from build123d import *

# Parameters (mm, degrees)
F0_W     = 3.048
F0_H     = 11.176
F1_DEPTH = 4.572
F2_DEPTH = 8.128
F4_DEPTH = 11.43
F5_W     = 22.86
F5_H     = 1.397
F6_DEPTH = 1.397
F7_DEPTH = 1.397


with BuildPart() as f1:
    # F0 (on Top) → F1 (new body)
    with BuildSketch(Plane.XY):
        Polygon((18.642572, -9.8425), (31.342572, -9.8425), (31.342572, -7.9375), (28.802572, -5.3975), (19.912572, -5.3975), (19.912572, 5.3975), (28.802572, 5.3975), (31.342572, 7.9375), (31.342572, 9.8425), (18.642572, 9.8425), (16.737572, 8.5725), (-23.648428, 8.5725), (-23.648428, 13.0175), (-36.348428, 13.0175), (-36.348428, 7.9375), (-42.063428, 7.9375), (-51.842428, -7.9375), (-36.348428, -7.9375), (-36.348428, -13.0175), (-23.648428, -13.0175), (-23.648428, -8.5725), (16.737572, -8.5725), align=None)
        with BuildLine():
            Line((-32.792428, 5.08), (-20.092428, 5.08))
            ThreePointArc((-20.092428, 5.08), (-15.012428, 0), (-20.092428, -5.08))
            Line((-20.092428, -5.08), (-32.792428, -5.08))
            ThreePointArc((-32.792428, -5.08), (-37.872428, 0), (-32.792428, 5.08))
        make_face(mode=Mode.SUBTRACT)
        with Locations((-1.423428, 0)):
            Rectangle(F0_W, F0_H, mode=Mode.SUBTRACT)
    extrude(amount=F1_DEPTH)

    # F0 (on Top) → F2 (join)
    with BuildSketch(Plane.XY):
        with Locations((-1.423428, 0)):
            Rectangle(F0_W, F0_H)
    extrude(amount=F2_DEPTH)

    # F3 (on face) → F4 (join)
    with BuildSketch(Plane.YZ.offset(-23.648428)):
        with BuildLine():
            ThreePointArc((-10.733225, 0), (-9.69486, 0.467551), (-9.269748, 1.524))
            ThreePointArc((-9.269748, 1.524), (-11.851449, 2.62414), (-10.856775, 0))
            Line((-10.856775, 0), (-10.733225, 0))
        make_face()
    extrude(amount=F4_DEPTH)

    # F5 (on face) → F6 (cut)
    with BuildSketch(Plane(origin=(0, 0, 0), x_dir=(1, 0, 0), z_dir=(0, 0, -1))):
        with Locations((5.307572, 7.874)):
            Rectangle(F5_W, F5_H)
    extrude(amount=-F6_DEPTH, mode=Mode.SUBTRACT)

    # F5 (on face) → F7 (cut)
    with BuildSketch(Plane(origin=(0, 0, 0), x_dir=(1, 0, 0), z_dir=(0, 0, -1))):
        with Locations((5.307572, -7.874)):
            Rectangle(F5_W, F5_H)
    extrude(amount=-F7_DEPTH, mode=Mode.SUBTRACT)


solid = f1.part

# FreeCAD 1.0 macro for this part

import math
import FreeCAD as App
import Part
import Sketcher
from FreeCAD import Vector
Q = App.Units.Quantity


def add_polygon(sketch, points):
    """Adds a closed chain of lines whose ends are joined by coincident constraints."""
    first, n = sketch.GeometryCount, len(points)
    for a, b in zip(points, points[1:] + points[:1]):
        sketch.addGeometry(Part.LineSegment(App.Vector(*a, 0), App.Vector(*b, 0)), False)
    for i in range(n):
        sketch.addConstraint(Sketcher.Constraint("Coincident", first + i, 2, first + (i + 1) % n, 1))

doc = App.newDocument("Part")
body = doc.addObject("PartDesign::Body", "Body")

sketch1 = body.newObject("Sketcher::SketchObject", "Sketch")
sketch1.AttachmentSupport = (doc.getObject("XY_Plane"), [""])
sketch1.MapMode = "FlatFace"
add_polygon(sketch1, [(18.6, -9.8), (31.3, -9.8), (31.3, -7.9), (28.8, -5.4), (19.9, -5.4), (19.9, 5.4), (28.8, 5.4), (31.3, 7.9), (31.3, 9.8), (18.6, 9.8), (16.7, 8.6), (-23.6, 8.6), (-23.6, 13), (-36.3, 13), (-36.3, 7.9), (-42.1, 7.9), (-51.8, -7.9), (-36.3, -7.9), (-36.3, -13), (-23.6, -13), (-23.6, -8.6), (16.7, -8.6)])
sketch1.addGeometry(Part.ArcOfCircle(Part.Circle(Vector(-32.8, 0, 0), Vector(0, 0, 1), 5.1), math.radians(90), math.radians(270)), False)
sketch1.addGeometry(Part.LineSegment(Vector(-32.8, 5.1, 0), Vector(-20.1, 5.1, 0)), False)
sketch1.addGeometry(Part.ArcOfCircle(Part.Circle(Vector(-20.1, 0, 0), Vector(0, 0, 1), 5.1), math.radians(-90), math.radians(90)), False)
sketch1.addGeometry(Part.LineSegment(Vector(-20.1, -5.1, 0), Vector(-32.8, -5.1, 0)), False)
add_polygon(sketch1, [(0.1, -5.6), (-2.9, -5.6), (-2.9, 5.6), (0.1, 5.6)])
sketch1.addConstraint([
    Sketcher.Constraint("Tangent", 22, 1, 23, 1),
    Sketcher.Constraint("Tangent", 23, 2, 24, 2),
    Sketcher.Constraint("Tangent", 24, 1, 25, 1),
    Sketcher.Constraint("Tangent", 25, 2, 22, 2),
    Sketcher.Constraint("Horizontal", 0),
    Sketcher.Constraint("Vertical", 1),
    Sketcher.Constraint("Horizontal", 3),
    Sketcher.Constraint("Vertical", 4),
    Sketcher.Constraint("Horizontal", 5),
    Sketcher.Constraint("Vertical", 7),
    Sketcher.Constraint("Horizontal", 8),
    Sketcher.Constraint("Horizontal", 10),
    Sketcher.Constraint("Vertical", 11),
    Sketcher.Constraint("Horizontal", 12),
    Sketcher.Constraint("Vertical", 13),
    Sketcher.Constraint("Horizontal", 14),
    Sketcher.Constraint("Horizontal", 16),
    Sketcher.Constraint("Vertical", 17),
    Sketcher.Constraint("Horizontal", 18),
    Sketcher.Constraint("Vertical", 19),
    Sketcher.Constraint("Horizontal", 20),
    Sketcher.Constraint("Horizontal", 23),
    Sketcher.Constraint("Horizontal", 25),
    Sketcher.Constraint("Horizontal", 26),
    Sketcher.Constraint("Vertical", 27),
    Sketcher.Constraint("Horizontal", 28),
    Sketcher.Constraint("Vertical", 29),
    Sketcher.Constraint("Symmetric", 2, 2, 5, 2, -1),
    Sketcher.Constraint("Symmetric", 1, 2, 6, 2, -1),
    Sketcher.Constraint("Symmetric", 13, 2, 16, 2, -1),
    Sketcher.Constraint("Symmetric", 11, 2, 18, 2, -1),
    Sketcher.Constraint("Symmetric", 9, 2, 20, 2, -1),
    Sketcher.Constraint("Symmetric", 8, 2, 21, 2, -1),
    Sketcher.Constraint("PointOnObject", 22, 3, -1),
    Sketcher.Constraint("Perpendicular", 2, 6),
    Sketcher.Constraint("Horizontal", 6, 2, 13, 2),
    Sketcher.Constraint("Equal", 8, 12),
    Sketcher.Constraint("Equal", 18, 23),
    Sketcher.Constraint("Radius", 22, Q("0.2 in")),
    Sketcher.Constraint("DistanceX", 0, 1, 0, 2, Q("0.5 in")),
    Sketcher.Constraint("DistanceY", 13, 2, 13, 1, Q("0.2 in")),
    Sketcher.Constraint("DistanceX", 3, 2, 3, 1, Q("0.35 in")),
    Sketcher.Constraint("DistanceX", 10, 2, 10, 1, Q("1.59 in")),
    Sketcher.Constraint("DistanceX", 16, 1, 16, 2, Q("0.61 in")),
    Sketcher.Constraint("DistanceX", 26, 2, 26, 1, Q("0.12 in")),
    Sketcher.Constraint("DistanceY", 27, 1, 27, 2, Q("0.44 in")),
    Sketcher.Constraint("DistanceX", 2, 2, 1, 2, Q("0.1 in")),
    Sketcher.Constraint("DistanceY", 0, 2, 4, 2, Q("0.6 in")),
    Sketcher.Constraint("DistanceX", 14, 2, 14, 1, Q("0.225 in")),
    Sketcher.Constraint("DistanceY", 1, 1, 1, 2, Q("0.075 in")),
    Sketcher.Constraint("DistanceY", 11, 1, 11, 2, Q("0.175 in")),
    Sketcher.Constraint("DistanceY", 26, 2, -1, 1, Q("0.22 in")),
    Sketcher.Constraint("DistanceX", 10, 2, 24, 3, Q("0.14 in")),
    Sketcher.Constraint("DistanceX", 28, 2, 8, 2, Q("0.73 in")),
    Sketcher.Constraint("DistanceX", 24, 3, 0, 2, Q("2.025 in")),
    Sketcher.Constraint("DistanceX", 24, 3, -1, 1, Q("20.092428 mm")),
])
pad1 = body.newObject("PartDesign::Pad", "Pad")
pad1.Profile = sketch1
pad1.Length = Q("0.18 in")

sketch2 = body.newObject("Sketcher::SketchObject", "Sketch001")
sketch2.AttachmentSupport = (doc.getObject("XY_Plane"), [""])
sketch2.MapMode = "FlatFace"
add_polygon(sketch2, [(-2.9, 5.6), (-2.9, -5.6), (0.1, -5.6), (0.1, 5.6)])
sketch2.addConstraint([
    Sketcher.Constraint("Vertical", 0),
    Sketcher.Constraint("Horizontal", 1),
    Sketcher.Constraint("Vertical", 2),
    Sketcher.Constraint("Horizontal", 3),
    Sketcher.Constraint("DistanceX", 1, 1, 1, 2, Q("0.12 in")),
    Sketcher.Constraint("DistanceY", 0, 2, 0, 1, Q("0.44 in")),
    Sketcher.Constraint("DistanceY", 0, 2, -1, 1, Q("0.22 in")),
    Sketcher.Constraint("DistanceX", -1, 1, 1, 2, Q("0.100572 mm")),
])
pad2 = body.newObject("PartDesign::Pad", "Pad001")
pad2.Profile = sketch2
pad2.Length = Q("0.32 in")

sketch3 = body.newObject("Sketcher::SketchObject", "Sketch002")
sketch3.AttachmentSupport = (doc.getObject("YZ_Plane"), [""])
sketch3.MapMode = "FlatFace"
sketch3.AttachmentOffset = App.Placement(Vector(0, 0, -23.648428), App.Rotation())
sketch3.addGeometry([
    Part.ArcOfCircle(Part.Circle(Vector(-10.8, 1.52, 0), Vector(0, 0, 1), 1.53), math.radians(-88), math.radians(0)),
    Part.ArcOfCircle(Part.Circle(Vector(-10.79, 1.52, 0), Vector(0, 0, 1), 1.53), math.radians(0), math.radians(268)),
    Part.LineSegment(Vector(-10.86, 0, 0), Vector(-10.73, 0, 0)),
], False)
sketch3.addConstraint([
    Sketcher.Constraint("Tangent", 0, 2, 1, 1),
    Sketcher.Constraint("Coincident", 1, 2, 2, 1),
    Sketcher.Constraint("Coincident", 2, 2, 0, 1),
    Sketcher.Constraint("Horizontal", 2),
    Sketcher.Constraint("Equal", 0, 1),
    Sketcher.Constraint("PointOnObject", 1, 2, -1),
    Sketcher.Constraint("Horizontal", 1, 3, 0, 2),
    Sketcher.Constraint("DistanceY", -1, 1, 0, 3, Q("0.06 in")),
    Sketcher.Constraint("DistanceX", 0, 3, -1, 1, Q("0.425 in")),
    Sketcher.Constraint("Radius", 1, Q("1.525252 mm")),
])
pad3 = body.newObject("PartDesign::Pad", "Pad002")
pad3.Profile = sketch3
pad3.Length = Q("0.45 in")

sketch4 = body.newObject("Sketcher::SketchObject", "Sketch003")
sketch4.AttachmentSupport = (doc.getObject("XY_Plane"), [""])
sketch4.MapMode = "FlatFace"
add_polygon(sketch4, [(-6.1, -8.6), (-6.1, -7.2), (16.7, -7.2), (16.7, -8.6)])
sketch4.addConstraint([
    Sketcher.Constraint("Vertical", 0),
    Sketcher.Constraint("Horizontal", 1),
    Sketcher.Constraint("Vertical", 2),
    Sketcher.Constraint("Horizontal", 3),
    Sketcher.Constraint("DistanceX", 1, 1, 1, 2, Q("0.9 in")),
    Sketcher.Constraint("DistanceY", 0, 1, 0, 2, Q("0.055 in")),
    Sketcher.Constraint("DistanceY", 0, 2, -1, 1, Q("0.2825 in")),
    Sketcher.Constraint("DistanceX", 0, 2, -1, 1, Q("6.122428 mm")),
])
pocket1 = body.newObject("PartDesign::Pocket", "Pocket")
pocket1.Profile = sketch4
pocket1.Length = Q("0.055 in")
pocket1.Reversed = True

sketch5 = body.newObject("Sketcher::SketchObject", "Sketch004")
sketch5.AttachmentSupport = (doc.getObject("XY_Plane"), [""])
sketch5.MapMode = "FlatFace"
add_polygon(sketch5, [(-6.1, 7.2), (-6.1, 8.6), (16.7, 8.6), (16.7, 7.2)])
sketch5.addConstraint([
    Sketcher.Constraint("Vertical", 0),
    Sketcher.Constraint("Horizontal", 1),
    Sketcher.Constraint("Vertical", 2),
    Sketcher.Constraint("Horizontal", 3),
    Sketcher.Constraint("DistanceX", 1, 1, 1, 2, Q("0.9 in")),
    Sketcher.Constraint("DistanceY", 0, 1, 0, 2, Q("0.055 in")),
    Sketcher.Constraint("DistanceY", -1, 1, 0, 2, Q("0.3375 in")),
    Sketcher.Constraint("DistanceX", 0, 2, -1, 1, Q("6.122428 mm")),
])
pocket2 = body.newObject("PartDesign::Pocket", "Pocket001")
pocket2.Profile = sketch5
pocket2.Length = Q("0.055 in")
pocket2.Reversed = True

doc.recompute()
